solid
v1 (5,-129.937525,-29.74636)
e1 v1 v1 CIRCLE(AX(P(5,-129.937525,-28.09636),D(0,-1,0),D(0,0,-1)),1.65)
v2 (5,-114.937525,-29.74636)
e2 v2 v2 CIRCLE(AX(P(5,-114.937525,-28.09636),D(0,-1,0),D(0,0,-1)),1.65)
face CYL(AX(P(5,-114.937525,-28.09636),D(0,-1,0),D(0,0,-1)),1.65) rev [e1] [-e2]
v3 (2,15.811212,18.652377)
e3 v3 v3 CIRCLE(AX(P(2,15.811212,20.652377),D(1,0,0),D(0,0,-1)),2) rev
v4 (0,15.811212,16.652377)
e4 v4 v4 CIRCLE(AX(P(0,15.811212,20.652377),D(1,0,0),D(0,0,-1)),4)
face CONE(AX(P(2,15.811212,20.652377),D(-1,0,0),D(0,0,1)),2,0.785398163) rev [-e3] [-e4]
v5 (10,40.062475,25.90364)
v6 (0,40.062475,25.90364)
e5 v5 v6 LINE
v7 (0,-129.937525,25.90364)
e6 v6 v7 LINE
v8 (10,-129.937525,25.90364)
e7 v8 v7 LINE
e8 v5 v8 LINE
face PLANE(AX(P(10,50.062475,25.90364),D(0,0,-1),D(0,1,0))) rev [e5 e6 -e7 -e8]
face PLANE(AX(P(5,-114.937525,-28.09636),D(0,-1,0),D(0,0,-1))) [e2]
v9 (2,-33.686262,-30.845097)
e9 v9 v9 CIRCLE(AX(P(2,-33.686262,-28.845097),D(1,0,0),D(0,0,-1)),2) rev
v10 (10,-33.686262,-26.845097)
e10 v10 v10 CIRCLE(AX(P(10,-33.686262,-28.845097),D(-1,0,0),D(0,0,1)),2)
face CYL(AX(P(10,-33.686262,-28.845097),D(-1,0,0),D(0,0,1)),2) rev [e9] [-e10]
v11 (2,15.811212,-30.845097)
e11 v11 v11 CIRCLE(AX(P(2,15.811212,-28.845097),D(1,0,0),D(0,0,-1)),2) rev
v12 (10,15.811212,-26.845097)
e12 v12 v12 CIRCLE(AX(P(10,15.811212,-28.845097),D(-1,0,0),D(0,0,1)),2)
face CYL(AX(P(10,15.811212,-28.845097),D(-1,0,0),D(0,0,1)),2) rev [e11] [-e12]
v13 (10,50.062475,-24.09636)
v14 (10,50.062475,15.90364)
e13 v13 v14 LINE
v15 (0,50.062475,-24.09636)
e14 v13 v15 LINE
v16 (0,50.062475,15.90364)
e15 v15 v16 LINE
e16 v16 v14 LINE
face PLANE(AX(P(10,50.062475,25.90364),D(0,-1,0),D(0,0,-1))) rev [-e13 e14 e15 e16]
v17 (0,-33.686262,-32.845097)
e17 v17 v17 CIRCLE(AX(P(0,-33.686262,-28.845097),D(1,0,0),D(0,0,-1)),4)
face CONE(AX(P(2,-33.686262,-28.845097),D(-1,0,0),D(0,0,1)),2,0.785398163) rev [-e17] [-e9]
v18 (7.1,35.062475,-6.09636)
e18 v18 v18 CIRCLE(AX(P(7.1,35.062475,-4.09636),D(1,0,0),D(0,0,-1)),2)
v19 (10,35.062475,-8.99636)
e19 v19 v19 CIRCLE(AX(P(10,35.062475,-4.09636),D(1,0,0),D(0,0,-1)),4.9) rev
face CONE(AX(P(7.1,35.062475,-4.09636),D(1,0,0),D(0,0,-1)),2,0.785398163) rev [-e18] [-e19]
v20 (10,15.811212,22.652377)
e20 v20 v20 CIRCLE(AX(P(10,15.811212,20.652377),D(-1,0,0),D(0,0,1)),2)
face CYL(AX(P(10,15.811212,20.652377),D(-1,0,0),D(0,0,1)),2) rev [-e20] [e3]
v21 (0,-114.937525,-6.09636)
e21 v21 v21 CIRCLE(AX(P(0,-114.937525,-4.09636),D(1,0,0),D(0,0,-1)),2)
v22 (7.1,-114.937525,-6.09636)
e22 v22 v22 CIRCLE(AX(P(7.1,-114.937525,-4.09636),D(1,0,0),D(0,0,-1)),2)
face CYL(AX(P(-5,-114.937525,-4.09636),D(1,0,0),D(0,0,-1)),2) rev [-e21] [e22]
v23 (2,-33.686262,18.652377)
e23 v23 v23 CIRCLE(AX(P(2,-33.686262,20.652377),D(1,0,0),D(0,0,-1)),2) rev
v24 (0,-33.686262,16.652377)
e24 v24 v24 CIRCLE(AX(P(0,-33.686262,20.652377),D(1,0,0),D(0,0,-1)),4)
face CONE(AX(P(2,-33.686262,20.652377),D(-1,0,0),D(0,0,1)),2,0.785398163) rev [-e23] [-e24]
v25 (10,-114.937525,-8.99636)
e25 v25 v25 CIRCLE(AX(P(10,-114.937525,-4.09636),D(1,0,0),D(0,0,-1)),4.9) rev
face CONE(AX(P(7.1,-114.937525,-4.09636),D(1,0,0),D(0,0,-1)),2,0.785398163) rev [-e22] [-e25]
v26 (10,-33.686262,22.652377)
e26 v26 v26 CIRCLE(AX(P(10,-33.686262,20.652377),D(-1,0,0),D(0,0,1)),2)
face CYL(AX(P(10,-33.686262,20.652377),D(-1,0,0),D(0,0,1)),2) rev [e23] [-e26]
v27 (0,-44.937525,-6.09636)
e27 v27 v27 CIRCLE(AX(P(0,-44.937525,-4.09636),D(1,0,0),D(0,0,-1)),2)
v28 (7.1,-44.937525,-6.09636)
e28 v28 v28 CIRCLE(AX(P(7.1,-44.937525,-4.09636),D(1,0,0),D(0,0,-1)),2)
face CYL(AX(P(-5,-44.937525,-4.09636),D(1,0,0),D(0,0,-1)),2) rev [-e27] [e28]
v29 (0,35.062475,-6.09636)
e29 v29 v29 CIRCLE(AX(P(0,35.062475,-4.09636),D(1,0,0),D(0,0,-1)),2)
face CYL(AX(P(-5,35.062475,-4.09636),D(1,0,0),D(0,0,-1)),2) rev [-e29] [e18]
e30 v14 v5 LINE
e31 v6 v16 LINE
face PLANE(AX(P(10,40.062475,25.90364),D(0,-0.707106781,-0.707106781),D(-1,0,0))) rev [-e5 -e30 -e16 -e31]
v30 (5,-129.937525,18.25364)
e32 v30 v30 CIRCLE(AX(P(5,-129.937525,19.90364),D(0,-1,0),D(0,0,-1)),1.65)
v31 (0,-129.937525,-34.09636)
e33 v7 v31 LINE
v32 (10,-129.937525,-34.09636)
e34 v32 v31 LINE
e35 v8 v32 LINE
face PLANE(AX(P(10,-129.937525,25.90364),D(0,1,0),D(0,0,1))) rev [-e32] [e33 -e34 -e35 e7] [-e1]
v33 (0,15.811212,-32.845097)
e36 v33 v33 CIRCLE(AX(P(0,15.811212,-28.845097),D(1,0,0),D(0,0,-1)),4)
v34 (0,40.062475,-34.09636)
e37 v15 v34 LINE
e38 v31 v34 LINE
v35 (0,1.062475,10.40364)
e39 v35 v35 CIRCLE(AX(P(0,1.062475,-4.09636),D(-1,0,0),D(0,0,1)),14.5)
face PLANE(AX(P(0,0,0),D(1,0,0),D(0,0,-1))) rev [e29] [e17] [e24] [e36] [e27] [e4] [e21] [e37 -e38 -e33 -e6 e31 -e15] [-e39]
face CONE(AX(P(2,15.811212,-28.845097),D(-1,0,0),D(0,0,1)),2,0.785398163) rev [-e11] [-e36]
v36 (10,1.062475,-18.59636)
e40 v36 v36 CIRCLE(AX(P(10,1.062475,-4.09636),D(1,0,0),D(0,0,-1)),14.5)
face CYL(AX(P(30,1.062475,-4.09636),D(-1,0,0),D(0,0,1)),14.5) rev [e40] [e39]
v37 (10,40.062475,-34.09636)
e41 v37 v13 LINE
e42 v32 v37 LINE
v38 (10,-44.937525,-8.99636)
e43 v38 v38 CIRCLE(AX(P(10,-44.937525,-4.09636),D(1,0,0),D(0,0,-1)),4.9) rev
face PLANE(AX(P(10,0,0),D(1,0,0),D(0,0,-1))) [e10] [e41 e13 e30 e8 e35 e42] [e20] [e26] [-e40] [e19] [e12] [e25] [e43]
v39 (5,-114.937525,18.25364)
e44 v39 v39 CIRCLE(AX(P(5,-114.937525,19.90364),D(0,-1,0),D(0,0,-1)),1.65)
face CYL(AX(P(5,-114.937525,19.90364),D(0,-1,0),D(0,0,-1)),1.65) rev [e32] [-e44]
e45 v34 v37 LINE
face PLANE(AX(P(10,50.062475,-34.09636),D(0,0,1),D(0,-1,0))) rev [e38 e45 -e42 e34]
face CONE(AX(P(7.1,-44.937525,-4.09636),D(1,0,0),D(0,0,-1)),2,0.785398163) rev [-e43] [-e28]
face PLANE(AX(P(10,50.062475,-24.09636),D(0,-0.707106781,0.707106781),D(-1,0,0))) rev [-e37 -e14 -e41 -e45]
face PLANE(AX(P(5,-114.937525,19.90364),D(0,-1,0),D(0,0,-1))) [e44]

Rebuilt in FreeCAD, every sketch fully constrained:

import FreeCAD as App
import Part
import Sketcher
Q = App.Units.Quantity


def edges_at(feature, points):
    """Names of the edges that pass closest to the given points."""
    edges = feature.Shape.Edges
    near = lambda p: min(range(len(edges)), key=lambda i: edges[i].distToShape(Part.Vertex(*p))[0])
    return sorted({f"Edge{near(p) + 1}" for p in points})

doc = App.newDocument("Part")
body = doc.addObject("PartDesign::Body", "Body")

# Sketch on YZ plane
sketch1 = body.newObject("Sketcher::SketchObject", "Sketch")
sketch1.AttachmentSupport = (doc.getObject("YZ_Plane"), [""])
sketch1.MapMode = "FlatFace"
sketch1.addGeometry([
    Part.LineSegment(App.Vector(50, 26, 0), App.Vector(-130, 26, 0)),
    Part.LineSegment(App.Vector(-130, 26, 0), App.Vector(-130, -34, 0)),
    Part.LineSegment(App.Vector(-130, -34, 0), App.Vector(50, -34, 0)),
    Part.LineSegment(App.Vector(50, -34, 0), App.Vector(50, 26, 0)),
], False)
sketch1.addConstraint([
    Sketcher.Constraint("Coincident", 0, 2, 1, 1),
    Sketcher.Constraint("Coincident", 1, 2, 2, 1),
    Sketcher.Constraint("Coincident", 2, 2, 3, 1),
    Sketcher.Constraint("Coincident", 3, 2, 0, 1),
    Sketcher.Constraint("Horizontal", 0),
    Sketcher.Constraint("Vertical", 1),
    Sketcher.Constraint("Horizontal", 2),
    Sketcher.Constraint("Vertical", 3),
    Sketcher.Constraint("DistanceX", 0, 2, 0, 1, Q("180 mm")),
    Sketcher.Constraint("DistanceY", 1, 2, 1, 1, Q("60 mm")),
    Sketcher.Constraint("DistanceY", -1, 1, 0, 2, Q("25.90364 mm")),
    Sketcher.Constraint("DistanceX", 0, 2, -1, 1, Q("129.937525 mm")),
])
pad1 = body.newObject("PartDesign::Pad", "Pad")
pad1.Profile = sketch1
pad1.Length = 10

# Sketch on YZ plane
sketch2 = body.newObject("Sketcher::SketchObject", "Sketch001")
sketch2.AttachmentSupport = (doc.getObject("YZ_Plane"), [""])
sketch2.MapMode = "FlatFace"
sketch2.addGeometry(Part.Circle(App.Vector(1, -4, 0), App.Vector(0, 0, 1), 14), False)
sketch2.addConstraint([
    Sketcher.Constraint("Diameter", 0, Q("29 mm")),
    Sketcher.Constraint("DistanceY", 0, 3, -1, 1, Q("4.09636 mm")),
    Sketcher.Constraint("DistanceX", -1, 1, 0, 3, Q("1.062475 mm")),
])
pocket1 = body.newObject("PartDesign::Pocket", "Pocket")
pocket1.Profile = sketch2
pocket1.Length = 30
pocket1.Reversed = True

# Sketch on YZ plane
sketch3 = body.newObject("Sketcher::SketchObject", "Sketch002")
sketch3.AttachmentSupport = (doc.getObject("YZ_Plane"), [""])
sketch3.MapMode = "FlatFace"
sketch3.addGeometry([
    Part.Circle(App.Vector(15.8, -28.8, 0), App.Vector(0, 0, 1), 2),
    Part.Circle(App.Vector(-33.7, -28.8, 0), App.Vector(0, 0, 1), 2),
    Part.Circle(App.Vector(15.8, 20.7, 0), App.Vector(0, 0, 1), 2),
    Part.Circle(App.Vector(-33.7, 20.7, 0), App.Vector(0, 0, 1), 2),
], False)
sketch3.addConstraint([
    Sketcher.Constraint("Equal", 0, 1),
    Sketcher.Constraint("Equal", 1, 2),
    Sketcher.Constraint("Equal", 2, 3),
    Sketcher.Constraint("Horizontal", 0, 3, 1, 3),
    Sketcher.Constraint("Horizontal", 2, 3, 3, 3),
    Sketcher.Constraint("Vertical", 0, 3, 2, 3),
    Sketcher.Constraint("Vertical", 1, 3, 3, 3),
    Sketcher.Constraint("Diameter", 0, Q("4 mm")),
    Sketcher.Constraint("DistanceX", -1, 1, 0, 3, Q("15.811212 mm")),
    Sketcher.Constraint("DistanceY", 0, 3, -1, 1, Q("28.845098 mm")),
    Sketcher.Constraint("DistanceX", 1, 3, -1, 1, Q("33.686262 mm")),
    Sketcher.Constraint("DistanceY", -1, 1, 2, 3, Q("20.652377 mm")),
])
pocket2 = body.newObject("PartDesign::Pocket", "Pocket001")
pocket2.Profile = sketch3
pocket2.Length = 10
pocket2.Reversed = True
doc.recompute()

chamfer = body.newObject("PartDesign::Chamfer", "Chamfer")
chamfer.Base = (pocket2, edges_at(pocket2, [
    (0, 15.811, -30.845),
    (0, -33.686, -30.845),
    (0, 15.811, 18.652),
    (0, -33.686, 18.652),
]))
chamfer.Size = 2

# Sketch on YZ plane
sketch4 = body.newObject("Sketcher::SketchObject", "Sketch003")
sketch4.AttachmentSupport = (doc.getObject("YZ_Plane"), [""])
sketch4.MapMode = "FlatFace"
sketch4.AttachmentOffset = App.Placement(App.Vector(0, 0, 10), App.Rotation())
sketch4.addGeometry([
    Part.Circle(App.Vector(-114.9, -4.1, 0), App.Vector(0, 0, 1), 2),
    Part.Circle(App.Vector(-44.9, -4.1, 0), App.Vector(0, 0, 1), 2),
    Part.Circle(App.Vector(35.1, -4.1, 0), App.Vector(0, 0, 1), 2),
], False)
sketch4.addConstraint([
    Sketcher.Constraint("Equal", 0, 1),
    Sketcher.Constraint("Equal", 1, 2),
    Sketcher.Constraint("Horizontal", 0, 3, 1, 3),
    Sketcher.Constraint("Horizontal", 1, 3, 2, 3),
    Sketcher.Constraint("Diameter", 0, Q("4 mm")),
    Sketcher.Constraint("DistanceX", 0, 3, 1, 3, Q("70 mm")),
    Sketcher.Constraint("DistanceX", 1, 3, 2, 3, Q("80 mm")),
    Sketcher.Constraint("DistanceY", 0, 3, -1, 1, Q("4.09636 mm")),
    Sketcher.Constraint("DistanceX", 0, 3, -1, 1, Q("114.937525 mm")),
])
pocket3 = body.newObject("PartDesign::Pocket", "Pocket002")
pocket3.Profile = sketch4
pocket3.Length = 15
doc.recompute()

chamfer2 = body.newObject("PartDesign::Chamfer", "Chamfer001")
chamfer2.Base = (pocket3, edges_at(pocket3, [(10, -114.938, -2.096), (10, -44.938, -2.096), (10, 35.062, -2.096)]))
chamfer2.Size = 2.9
doc.recompute()

chamfer3 = body.newObject("PartDesign::Chamfer", "Chamfer002")
chamfer3.Base = (chamfer2, edges_at(chamfer2, [(5, 50.062, 25.904), (5, 50.062, -34.096)]))
chamfer3.Size = 10

# Sketch on XZ plane
sketch5 = body.newObject("Sketcher::SketchObject", "Sketch004")
sketch5.AttachmentSupport = (doc.getObject("XZ_Plane"), [""])
sketch5.MapMode = "FlatFace"
sketch5.AttachmentOffset = App.Placement(App.Vector(0, 0, 129.937525), App.Rotation())
sketch5.addGeometry([
    Part.Circle(App.Vector(5, 19.9, 0), App.Vector(0, 0, 1), 1.6),
    Part.Circle(App.Vector(5, -28.1, 0), App.Vector(0, 0, 1), 1.6),
], False)
sketch5.addConstraint([
    Sketcher.Constraint("Equal", 0, 1),
    Sketcher.Constraint("Vertical", 0, 3, 1, 3),
    Sketcher.Constraint("Diameter", 0, Q("3.3 mm")),
    Sketcher.Constraint("DistanceX", -1, 1, 0, 3, Q("5 mm")),
    Sketcher.Constraint("DistanceY", 1, 3, 0, 3, Q("48 mm")),
    Sketcher.Constraint("DistanceY", -1, 1, 0, 3, Q("19.90364 mm")),
])
pocket4 = body.newObject("PartDesign::Pocket", "Pocket003")
pocket4.Profile = sketch5
pocket4.Length = 15

doc.recompute()
